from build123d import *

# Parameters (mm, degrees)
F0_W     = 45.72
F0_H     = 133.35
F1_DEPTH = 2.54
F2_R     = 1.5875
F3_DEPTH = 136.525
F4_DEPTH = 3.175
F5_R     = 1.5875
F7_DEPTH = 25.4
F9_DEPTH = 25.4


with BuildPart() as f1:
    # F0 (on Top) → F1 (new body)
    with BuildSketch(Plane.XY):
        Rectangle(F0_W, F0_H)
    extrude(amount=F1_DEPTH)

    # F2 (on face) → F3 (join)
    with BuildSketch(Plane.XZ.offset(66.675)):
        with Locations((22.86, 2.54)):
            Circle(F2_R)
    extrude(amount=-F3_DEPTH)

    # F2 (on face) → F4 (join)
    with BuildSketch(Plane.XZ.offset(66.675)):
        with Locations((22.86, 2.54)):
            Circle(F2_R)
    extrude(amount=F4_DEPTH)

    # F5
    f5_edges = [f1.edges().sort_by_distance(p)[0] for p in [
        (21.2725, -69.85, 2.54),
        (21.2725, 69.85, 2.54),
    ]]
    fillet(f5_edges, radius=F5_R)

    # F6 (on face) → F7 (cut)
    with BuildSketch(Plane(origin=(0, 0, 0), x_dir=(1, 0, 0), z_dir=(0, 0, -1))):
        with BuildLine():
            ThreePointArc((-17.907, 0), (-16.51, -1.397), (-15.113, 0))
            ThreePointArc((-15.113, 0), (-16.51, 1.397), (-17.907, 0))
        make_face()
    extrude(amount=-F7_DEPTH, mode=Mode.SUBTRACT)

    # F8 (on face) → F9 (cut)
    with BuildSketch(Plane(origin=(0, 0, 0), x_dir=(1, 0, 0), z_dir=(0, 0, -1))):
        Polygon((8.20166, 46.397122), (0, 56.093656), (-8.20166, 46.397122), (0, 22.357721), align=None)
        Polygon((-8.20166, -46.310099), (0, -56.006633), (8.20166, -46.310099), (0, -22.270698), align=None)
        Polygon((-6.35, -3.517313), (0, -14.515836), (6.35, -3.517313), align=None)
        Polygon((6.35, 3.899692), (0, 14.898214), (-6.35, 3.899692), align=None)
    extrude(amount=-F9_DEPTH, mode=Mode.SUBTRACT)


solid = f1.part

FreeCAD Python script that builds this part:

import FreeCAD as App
import Part
import Sketcher

V = App.Vector
Q = App.Units.Quantity


def edges_at(feature, points):
    """Names of the edges that pass closest to the given points."""
    edges = feature.Shape.Edges
    near = lambda p: min(range(len(edges)), key=lambda i: edges[i].distToShape(Part.Vertex(*p))[0])
    return sorted({f"Edge{near(p) + 1}" for p in points})

doc = App.newDocument("Part")
body = doc.addObject("PartDesign::Body", "Body")

# Sketch on XY plane
sketch1 = body.newObject("Sketcher::SketchObject", "Sketch")
sketch1.AttachmentSupport = (doc.getObject("XY_Plane"), [""])
sketch1.MapMode = "FlatFace"
sketch1.addGeometry([
    Part.LineSegment(V(-22.86, 66.675, 0), V(-22.86, -66.675, 0)),
    Part.LineSegment(V(-22.86, -66.675, 0), V(22.86, -66.675, 0)),
    Part.LineSegment(V(22.86, -66.675, 0), V(22.86, 66.675, 0)),
    Part.LineSegment(V(22.86, 66.675, 0), V(-22.86, 66.675, 0)),
], False)
sketch1.addConstraint([
    Sketcher.Constraint("Coincident", 0, 2, 1, 1),
    Sketcher.Constraint("Coincident", 1, 2, 2, 1),
    Sketcher.Constraint("Coincident", 2, 2, 3, 1),
    Sketcher.Constraint("Coincident", 3, 2, 0, 1),
    Sketcher.Constraint("Vertical", 0),
    Sketcher.Constraint("Horizontal", 1),
    Sketcher.Constraint("Vertical", 2),
    Sketcher.Constraint("Horizontal", 3),
    Sketcher.Constraint("Symmetric", 0, 2, 2, 2, -1, 1),
    Sketcher.Constraint("DistanceX", 1, 1, 1, 2, Q("1.8 in")),
    Sketcher.Constraint("DistanceY", 0, 2, 0, 1, Q("5.25 in")),
])
pad1 = body.newObject("PartDesign::Pad", "Pad")
pad1.Profile = sketch1
pad1.Length = Q("0.1 in")

# Sketch on XZ plane
sketch2 = body.newObject("Sketcher::SketchObject", "Sketch001")
sketch2.AttachmentSupport = (doc.getObject("XZ_Plane"), [""])
sketch2.MapMode = "FlatFace"
sketch2.AttachmentOffset = App.Placement(V(0, 0, 2.625 * 25.4), App.Rotation())
sketch2.addGeometry(Part.Circle(V(22.86, 2.54, 0), V(0, 0, 1), 1.5875), False)
sketch2.addConstraint([
    Sketcher.Constraint("Diameter", 0, Q("0.125 in")),
    Sketcher.Constraint("DistanceX", -1, 1, 0, 3, Q("0.9 in")),
    Sketcher.Constraint("DistanceY", -1, 1, 0, 3, Q("0.1 in")),
])
pad2 = body.newObject("PartDesign::Pad", "Pad001")
pad2.Profile = sketch2
pad2.Length = Q("5.375 in")
pad2.Reversed = True

# Sketch on XZ plane
sketch3 = body.newObject("Sketcher::SketchObject", "Sketch002")
sketch3.AttachmentSupport = (doc.getObject("XZ_Plane"), [""])
sketch3.MapMode = "FlatFace"
sketch3.AttachmentOffset = App.Placement(V(0, 0, 2.625 * 25.4), App.Rotation())
sketch3.addGeometry(Part.Circle(V(22.86, 2.54, 0), V(0, 0, 1), 1.5875), False)
sketch3.addConstraint([
    Sketcher.Constraint("Diameter", 0, Q("0.125 in")),
    Sketcher.Constraint("DistanceX", -1, 1, 0, 3, Q("0.9 in")),
    Sketcher.Constraint("DistanceY", -1, 1, 0, 3, Q("0.1 in")),
])
pad3 = body.newObject("PartDesign::Pad", "Pad002")
pad3.Profile = sketch3
pad3.Length = Q("0.125 in")
doc.recompute()

fillet = body.newObject("PartDesign::Fillet", "Fillet")
fillet.Base = (pad3, edges_at(pad3, [(21.273, -69.85, 2.54), (21.273, 69.85, 2.54)]))
fillet.Radius = Q("0.0625 in")

# Sketch on XY plane
sketch4 = body.newObject("Sketcher::SketchObject", "Sketch003")
sketch4.AttachmentSupport = (doc.getObject("XY_Plane"), [""])
sketch4.MapMode = "FlatFace"
sketch4.addGeometry(Part.Circle(V(-16.51, 0, 0), V(0, 0, 1), 1.397), False)
sketch4.addConstraint([
    Sketcher.Constraint("PointOnObject", 0, 3, -1),
    Sketcher.Constraint("Diameter", 0, Q("0.11 in")),
    Sketcher.Constraint("DistanceX", 0, 3, -1, 1, Q("0.65 in")),
])
pocket1 = body.newObject("PartDesign::Pocket", "Pocket")
pocket1.Profile = sketch4
pocket1.Length = Q("1 in")
pocket1.Reversed = True

# Sketch on XY plane
sketch5 = body.newObject("Sketcher::SketchObject", "Sketch004")
sketch5.AttachmentSupport = (doc.getObject("XY_Plane"), [""])
sketch5.MapMode = "FlatFace"
sketch5.addGeometry([
    Part.LineSegment(V(8.20166, -46.397122, 0), V(0, -56.093656, 0)),  # 0
    Part.LineSegment(V(0, -56.093656, 0), V(-8.20166, -46.397122, 0)),  # 1
    Part.LineSegment(V(-8.20166, -46.397122, 0), V(0, -22.357721, 0)),  # 2
    Part.LineSegment(V(0, -22.357721, 0), V(8.20166, -46.397122, 0)),  # 3
    Part.LineSegment(V(-8.20166, 46.310099, 0), V(0, 56.006633, 0)),  # 4
    Part.LineSegment(V(0, 56.006633, 0), V(8.20166, 46.310099, 0)),  # 5
    Part.LineSegment(V(8.20166, 46.310099, 0), V(0, 22.270698, 0)),  # 6
    Part.LineSegment(V(0, 22.270698, 0), V(-8.20166, 46.310099, 0)),  # 7
    Part.LineSegment(V(-6.35, 3.517313, 0), V(0, 14.515836, 0)),  # 8
    Part.LineSegment(V(0, 14.515836, 0), V(6.35, 3.517313, 0)),  # 9
    Part.LineSegment(V(6.35, 3.517313, 0), V(-6.35, 3.517313, 0)),  # 10
    Part.LineSegment(V(6.35, -3.899692, 0), V(0, -14.898214, 0)),  # 11
    Part.LineSegment(V(0, -14.898214, 0), V(-6.35, -3.899692, 0)),  # 12
    Part.LineSegment(V(-6.35, -3.899692, 0), V(6.35, -3.899692, 0)),  # 13
], False)
sketch5.addConstraint([
    Sketcher.Constraint("Coincident", 0, 2, 1, 1),
    Sketcher.Constraint("Coincident", 1, 2, 2, 1),
    Sketcher.Constraint("Coincident", 2, 2, 3, 1),
    Sketcher.Constraint("Coincident", 3, 2, 0, 1),
    Sketcher.Constraint("Coincident", 4, 2, 5, 1),
    Sketcher.Constraint("Coincident", 5, 2, 6, 1),
    Sketcher.Constraint("Coincident", 6, 2, 7, 1),
    Sketcher.Constraint("Coincident", 7, 2, 4, 1),
    Sketcher.Constraint("Coincident", 8, 2, 9, 1),
    Sketcher.Constraint("Coincident", 9, 2, 10, 1),
    Sketcher.Constraint("Coincident", 10, 2, 8, 1),
    Sketcher.Constraint("Coincident", 11, 2, 12, 1),
    Sketcher.Constraint("Coincident", 12, 2, 13, 1),
    Sketcher.Constraint("Coincident", 13, 2, 11, 1),
    Sketcher.Constraint("Horizontal", 10),
    Sketcher.Constraint("Horizontal", 13),
    Sketcher.Constraint("Symmetric", 1, 2, 3, 2, -2),
    Sketcher.Constraint("Symmetric", 5, 2, 7, 2, -2),
    Sketcher.Constraint("PointOnObject", 0, 2, -2),
    Sketcher.Constraint("PointOnObject", 2, 2, -2),
    Sketcher.Constraint("PointOnObject", 4, 2, -2),
    Sketcher.Constraint("PointOnObject", 6, 2, -2),
    Sketcher.Constraint("PointOnObject", 8, 2, -2),
    Sketcher.Constraint("PointOnObject", 11, 2, -2),
    Sketcher.Constraint("Parallel", 0, 4),
    Sketcher.Constraint("Parallel", 2, 6),
    Sketcher.Constraint("Parallel", 8, 11),
    Sketcher.Constraint("Parallel", 9, 12),
    Sketcher.Constraint("Vertical", 3, 2, 5, 2),
    Sketcher.Constraint("Vertical", 10, 2, 12, 2),
    Sketcher.Constraint("Vertical", 9, 2, 13, 2),
    Sketcher.Constraint("Equal", 5, 8),
    Sketcher.Constraint("Distance", 2, Q("1 in")),
    Sketcher.Constraint("DistanceX", 10, 2, 10, 1, Q("0.5 in")),
    Sketcher.Constraint("Angle", 8, Q("60.000001 deg")),
    Sketcher.Constraint("DistanceX", 1, 2, -1, 1, Q("0.3229 in")),
    Sketcher.Constraint("DistanceY", -1, 1, 5, 2, Q("46.310099 mm")),
    Sketcher.Constraint("DistanceY", 2, 2, -1, 1, Q("22.357721 mm")),
    Sketcher.Constraint("DistanceY", 12, 2, -1, 1, Q("3.899692 mm")),
    Sketcher.Constraint("DistanceY", 8, 2, 6, 2, Q("7.754862 mm")),
])
pocket2 = body.newObject("PartDesign::Pocket", "Pocket001")
pocket2.Profile = sketch5
pocket2.Length = Q("1 in")
pocket2.Reversed = True

doc.recompute()
